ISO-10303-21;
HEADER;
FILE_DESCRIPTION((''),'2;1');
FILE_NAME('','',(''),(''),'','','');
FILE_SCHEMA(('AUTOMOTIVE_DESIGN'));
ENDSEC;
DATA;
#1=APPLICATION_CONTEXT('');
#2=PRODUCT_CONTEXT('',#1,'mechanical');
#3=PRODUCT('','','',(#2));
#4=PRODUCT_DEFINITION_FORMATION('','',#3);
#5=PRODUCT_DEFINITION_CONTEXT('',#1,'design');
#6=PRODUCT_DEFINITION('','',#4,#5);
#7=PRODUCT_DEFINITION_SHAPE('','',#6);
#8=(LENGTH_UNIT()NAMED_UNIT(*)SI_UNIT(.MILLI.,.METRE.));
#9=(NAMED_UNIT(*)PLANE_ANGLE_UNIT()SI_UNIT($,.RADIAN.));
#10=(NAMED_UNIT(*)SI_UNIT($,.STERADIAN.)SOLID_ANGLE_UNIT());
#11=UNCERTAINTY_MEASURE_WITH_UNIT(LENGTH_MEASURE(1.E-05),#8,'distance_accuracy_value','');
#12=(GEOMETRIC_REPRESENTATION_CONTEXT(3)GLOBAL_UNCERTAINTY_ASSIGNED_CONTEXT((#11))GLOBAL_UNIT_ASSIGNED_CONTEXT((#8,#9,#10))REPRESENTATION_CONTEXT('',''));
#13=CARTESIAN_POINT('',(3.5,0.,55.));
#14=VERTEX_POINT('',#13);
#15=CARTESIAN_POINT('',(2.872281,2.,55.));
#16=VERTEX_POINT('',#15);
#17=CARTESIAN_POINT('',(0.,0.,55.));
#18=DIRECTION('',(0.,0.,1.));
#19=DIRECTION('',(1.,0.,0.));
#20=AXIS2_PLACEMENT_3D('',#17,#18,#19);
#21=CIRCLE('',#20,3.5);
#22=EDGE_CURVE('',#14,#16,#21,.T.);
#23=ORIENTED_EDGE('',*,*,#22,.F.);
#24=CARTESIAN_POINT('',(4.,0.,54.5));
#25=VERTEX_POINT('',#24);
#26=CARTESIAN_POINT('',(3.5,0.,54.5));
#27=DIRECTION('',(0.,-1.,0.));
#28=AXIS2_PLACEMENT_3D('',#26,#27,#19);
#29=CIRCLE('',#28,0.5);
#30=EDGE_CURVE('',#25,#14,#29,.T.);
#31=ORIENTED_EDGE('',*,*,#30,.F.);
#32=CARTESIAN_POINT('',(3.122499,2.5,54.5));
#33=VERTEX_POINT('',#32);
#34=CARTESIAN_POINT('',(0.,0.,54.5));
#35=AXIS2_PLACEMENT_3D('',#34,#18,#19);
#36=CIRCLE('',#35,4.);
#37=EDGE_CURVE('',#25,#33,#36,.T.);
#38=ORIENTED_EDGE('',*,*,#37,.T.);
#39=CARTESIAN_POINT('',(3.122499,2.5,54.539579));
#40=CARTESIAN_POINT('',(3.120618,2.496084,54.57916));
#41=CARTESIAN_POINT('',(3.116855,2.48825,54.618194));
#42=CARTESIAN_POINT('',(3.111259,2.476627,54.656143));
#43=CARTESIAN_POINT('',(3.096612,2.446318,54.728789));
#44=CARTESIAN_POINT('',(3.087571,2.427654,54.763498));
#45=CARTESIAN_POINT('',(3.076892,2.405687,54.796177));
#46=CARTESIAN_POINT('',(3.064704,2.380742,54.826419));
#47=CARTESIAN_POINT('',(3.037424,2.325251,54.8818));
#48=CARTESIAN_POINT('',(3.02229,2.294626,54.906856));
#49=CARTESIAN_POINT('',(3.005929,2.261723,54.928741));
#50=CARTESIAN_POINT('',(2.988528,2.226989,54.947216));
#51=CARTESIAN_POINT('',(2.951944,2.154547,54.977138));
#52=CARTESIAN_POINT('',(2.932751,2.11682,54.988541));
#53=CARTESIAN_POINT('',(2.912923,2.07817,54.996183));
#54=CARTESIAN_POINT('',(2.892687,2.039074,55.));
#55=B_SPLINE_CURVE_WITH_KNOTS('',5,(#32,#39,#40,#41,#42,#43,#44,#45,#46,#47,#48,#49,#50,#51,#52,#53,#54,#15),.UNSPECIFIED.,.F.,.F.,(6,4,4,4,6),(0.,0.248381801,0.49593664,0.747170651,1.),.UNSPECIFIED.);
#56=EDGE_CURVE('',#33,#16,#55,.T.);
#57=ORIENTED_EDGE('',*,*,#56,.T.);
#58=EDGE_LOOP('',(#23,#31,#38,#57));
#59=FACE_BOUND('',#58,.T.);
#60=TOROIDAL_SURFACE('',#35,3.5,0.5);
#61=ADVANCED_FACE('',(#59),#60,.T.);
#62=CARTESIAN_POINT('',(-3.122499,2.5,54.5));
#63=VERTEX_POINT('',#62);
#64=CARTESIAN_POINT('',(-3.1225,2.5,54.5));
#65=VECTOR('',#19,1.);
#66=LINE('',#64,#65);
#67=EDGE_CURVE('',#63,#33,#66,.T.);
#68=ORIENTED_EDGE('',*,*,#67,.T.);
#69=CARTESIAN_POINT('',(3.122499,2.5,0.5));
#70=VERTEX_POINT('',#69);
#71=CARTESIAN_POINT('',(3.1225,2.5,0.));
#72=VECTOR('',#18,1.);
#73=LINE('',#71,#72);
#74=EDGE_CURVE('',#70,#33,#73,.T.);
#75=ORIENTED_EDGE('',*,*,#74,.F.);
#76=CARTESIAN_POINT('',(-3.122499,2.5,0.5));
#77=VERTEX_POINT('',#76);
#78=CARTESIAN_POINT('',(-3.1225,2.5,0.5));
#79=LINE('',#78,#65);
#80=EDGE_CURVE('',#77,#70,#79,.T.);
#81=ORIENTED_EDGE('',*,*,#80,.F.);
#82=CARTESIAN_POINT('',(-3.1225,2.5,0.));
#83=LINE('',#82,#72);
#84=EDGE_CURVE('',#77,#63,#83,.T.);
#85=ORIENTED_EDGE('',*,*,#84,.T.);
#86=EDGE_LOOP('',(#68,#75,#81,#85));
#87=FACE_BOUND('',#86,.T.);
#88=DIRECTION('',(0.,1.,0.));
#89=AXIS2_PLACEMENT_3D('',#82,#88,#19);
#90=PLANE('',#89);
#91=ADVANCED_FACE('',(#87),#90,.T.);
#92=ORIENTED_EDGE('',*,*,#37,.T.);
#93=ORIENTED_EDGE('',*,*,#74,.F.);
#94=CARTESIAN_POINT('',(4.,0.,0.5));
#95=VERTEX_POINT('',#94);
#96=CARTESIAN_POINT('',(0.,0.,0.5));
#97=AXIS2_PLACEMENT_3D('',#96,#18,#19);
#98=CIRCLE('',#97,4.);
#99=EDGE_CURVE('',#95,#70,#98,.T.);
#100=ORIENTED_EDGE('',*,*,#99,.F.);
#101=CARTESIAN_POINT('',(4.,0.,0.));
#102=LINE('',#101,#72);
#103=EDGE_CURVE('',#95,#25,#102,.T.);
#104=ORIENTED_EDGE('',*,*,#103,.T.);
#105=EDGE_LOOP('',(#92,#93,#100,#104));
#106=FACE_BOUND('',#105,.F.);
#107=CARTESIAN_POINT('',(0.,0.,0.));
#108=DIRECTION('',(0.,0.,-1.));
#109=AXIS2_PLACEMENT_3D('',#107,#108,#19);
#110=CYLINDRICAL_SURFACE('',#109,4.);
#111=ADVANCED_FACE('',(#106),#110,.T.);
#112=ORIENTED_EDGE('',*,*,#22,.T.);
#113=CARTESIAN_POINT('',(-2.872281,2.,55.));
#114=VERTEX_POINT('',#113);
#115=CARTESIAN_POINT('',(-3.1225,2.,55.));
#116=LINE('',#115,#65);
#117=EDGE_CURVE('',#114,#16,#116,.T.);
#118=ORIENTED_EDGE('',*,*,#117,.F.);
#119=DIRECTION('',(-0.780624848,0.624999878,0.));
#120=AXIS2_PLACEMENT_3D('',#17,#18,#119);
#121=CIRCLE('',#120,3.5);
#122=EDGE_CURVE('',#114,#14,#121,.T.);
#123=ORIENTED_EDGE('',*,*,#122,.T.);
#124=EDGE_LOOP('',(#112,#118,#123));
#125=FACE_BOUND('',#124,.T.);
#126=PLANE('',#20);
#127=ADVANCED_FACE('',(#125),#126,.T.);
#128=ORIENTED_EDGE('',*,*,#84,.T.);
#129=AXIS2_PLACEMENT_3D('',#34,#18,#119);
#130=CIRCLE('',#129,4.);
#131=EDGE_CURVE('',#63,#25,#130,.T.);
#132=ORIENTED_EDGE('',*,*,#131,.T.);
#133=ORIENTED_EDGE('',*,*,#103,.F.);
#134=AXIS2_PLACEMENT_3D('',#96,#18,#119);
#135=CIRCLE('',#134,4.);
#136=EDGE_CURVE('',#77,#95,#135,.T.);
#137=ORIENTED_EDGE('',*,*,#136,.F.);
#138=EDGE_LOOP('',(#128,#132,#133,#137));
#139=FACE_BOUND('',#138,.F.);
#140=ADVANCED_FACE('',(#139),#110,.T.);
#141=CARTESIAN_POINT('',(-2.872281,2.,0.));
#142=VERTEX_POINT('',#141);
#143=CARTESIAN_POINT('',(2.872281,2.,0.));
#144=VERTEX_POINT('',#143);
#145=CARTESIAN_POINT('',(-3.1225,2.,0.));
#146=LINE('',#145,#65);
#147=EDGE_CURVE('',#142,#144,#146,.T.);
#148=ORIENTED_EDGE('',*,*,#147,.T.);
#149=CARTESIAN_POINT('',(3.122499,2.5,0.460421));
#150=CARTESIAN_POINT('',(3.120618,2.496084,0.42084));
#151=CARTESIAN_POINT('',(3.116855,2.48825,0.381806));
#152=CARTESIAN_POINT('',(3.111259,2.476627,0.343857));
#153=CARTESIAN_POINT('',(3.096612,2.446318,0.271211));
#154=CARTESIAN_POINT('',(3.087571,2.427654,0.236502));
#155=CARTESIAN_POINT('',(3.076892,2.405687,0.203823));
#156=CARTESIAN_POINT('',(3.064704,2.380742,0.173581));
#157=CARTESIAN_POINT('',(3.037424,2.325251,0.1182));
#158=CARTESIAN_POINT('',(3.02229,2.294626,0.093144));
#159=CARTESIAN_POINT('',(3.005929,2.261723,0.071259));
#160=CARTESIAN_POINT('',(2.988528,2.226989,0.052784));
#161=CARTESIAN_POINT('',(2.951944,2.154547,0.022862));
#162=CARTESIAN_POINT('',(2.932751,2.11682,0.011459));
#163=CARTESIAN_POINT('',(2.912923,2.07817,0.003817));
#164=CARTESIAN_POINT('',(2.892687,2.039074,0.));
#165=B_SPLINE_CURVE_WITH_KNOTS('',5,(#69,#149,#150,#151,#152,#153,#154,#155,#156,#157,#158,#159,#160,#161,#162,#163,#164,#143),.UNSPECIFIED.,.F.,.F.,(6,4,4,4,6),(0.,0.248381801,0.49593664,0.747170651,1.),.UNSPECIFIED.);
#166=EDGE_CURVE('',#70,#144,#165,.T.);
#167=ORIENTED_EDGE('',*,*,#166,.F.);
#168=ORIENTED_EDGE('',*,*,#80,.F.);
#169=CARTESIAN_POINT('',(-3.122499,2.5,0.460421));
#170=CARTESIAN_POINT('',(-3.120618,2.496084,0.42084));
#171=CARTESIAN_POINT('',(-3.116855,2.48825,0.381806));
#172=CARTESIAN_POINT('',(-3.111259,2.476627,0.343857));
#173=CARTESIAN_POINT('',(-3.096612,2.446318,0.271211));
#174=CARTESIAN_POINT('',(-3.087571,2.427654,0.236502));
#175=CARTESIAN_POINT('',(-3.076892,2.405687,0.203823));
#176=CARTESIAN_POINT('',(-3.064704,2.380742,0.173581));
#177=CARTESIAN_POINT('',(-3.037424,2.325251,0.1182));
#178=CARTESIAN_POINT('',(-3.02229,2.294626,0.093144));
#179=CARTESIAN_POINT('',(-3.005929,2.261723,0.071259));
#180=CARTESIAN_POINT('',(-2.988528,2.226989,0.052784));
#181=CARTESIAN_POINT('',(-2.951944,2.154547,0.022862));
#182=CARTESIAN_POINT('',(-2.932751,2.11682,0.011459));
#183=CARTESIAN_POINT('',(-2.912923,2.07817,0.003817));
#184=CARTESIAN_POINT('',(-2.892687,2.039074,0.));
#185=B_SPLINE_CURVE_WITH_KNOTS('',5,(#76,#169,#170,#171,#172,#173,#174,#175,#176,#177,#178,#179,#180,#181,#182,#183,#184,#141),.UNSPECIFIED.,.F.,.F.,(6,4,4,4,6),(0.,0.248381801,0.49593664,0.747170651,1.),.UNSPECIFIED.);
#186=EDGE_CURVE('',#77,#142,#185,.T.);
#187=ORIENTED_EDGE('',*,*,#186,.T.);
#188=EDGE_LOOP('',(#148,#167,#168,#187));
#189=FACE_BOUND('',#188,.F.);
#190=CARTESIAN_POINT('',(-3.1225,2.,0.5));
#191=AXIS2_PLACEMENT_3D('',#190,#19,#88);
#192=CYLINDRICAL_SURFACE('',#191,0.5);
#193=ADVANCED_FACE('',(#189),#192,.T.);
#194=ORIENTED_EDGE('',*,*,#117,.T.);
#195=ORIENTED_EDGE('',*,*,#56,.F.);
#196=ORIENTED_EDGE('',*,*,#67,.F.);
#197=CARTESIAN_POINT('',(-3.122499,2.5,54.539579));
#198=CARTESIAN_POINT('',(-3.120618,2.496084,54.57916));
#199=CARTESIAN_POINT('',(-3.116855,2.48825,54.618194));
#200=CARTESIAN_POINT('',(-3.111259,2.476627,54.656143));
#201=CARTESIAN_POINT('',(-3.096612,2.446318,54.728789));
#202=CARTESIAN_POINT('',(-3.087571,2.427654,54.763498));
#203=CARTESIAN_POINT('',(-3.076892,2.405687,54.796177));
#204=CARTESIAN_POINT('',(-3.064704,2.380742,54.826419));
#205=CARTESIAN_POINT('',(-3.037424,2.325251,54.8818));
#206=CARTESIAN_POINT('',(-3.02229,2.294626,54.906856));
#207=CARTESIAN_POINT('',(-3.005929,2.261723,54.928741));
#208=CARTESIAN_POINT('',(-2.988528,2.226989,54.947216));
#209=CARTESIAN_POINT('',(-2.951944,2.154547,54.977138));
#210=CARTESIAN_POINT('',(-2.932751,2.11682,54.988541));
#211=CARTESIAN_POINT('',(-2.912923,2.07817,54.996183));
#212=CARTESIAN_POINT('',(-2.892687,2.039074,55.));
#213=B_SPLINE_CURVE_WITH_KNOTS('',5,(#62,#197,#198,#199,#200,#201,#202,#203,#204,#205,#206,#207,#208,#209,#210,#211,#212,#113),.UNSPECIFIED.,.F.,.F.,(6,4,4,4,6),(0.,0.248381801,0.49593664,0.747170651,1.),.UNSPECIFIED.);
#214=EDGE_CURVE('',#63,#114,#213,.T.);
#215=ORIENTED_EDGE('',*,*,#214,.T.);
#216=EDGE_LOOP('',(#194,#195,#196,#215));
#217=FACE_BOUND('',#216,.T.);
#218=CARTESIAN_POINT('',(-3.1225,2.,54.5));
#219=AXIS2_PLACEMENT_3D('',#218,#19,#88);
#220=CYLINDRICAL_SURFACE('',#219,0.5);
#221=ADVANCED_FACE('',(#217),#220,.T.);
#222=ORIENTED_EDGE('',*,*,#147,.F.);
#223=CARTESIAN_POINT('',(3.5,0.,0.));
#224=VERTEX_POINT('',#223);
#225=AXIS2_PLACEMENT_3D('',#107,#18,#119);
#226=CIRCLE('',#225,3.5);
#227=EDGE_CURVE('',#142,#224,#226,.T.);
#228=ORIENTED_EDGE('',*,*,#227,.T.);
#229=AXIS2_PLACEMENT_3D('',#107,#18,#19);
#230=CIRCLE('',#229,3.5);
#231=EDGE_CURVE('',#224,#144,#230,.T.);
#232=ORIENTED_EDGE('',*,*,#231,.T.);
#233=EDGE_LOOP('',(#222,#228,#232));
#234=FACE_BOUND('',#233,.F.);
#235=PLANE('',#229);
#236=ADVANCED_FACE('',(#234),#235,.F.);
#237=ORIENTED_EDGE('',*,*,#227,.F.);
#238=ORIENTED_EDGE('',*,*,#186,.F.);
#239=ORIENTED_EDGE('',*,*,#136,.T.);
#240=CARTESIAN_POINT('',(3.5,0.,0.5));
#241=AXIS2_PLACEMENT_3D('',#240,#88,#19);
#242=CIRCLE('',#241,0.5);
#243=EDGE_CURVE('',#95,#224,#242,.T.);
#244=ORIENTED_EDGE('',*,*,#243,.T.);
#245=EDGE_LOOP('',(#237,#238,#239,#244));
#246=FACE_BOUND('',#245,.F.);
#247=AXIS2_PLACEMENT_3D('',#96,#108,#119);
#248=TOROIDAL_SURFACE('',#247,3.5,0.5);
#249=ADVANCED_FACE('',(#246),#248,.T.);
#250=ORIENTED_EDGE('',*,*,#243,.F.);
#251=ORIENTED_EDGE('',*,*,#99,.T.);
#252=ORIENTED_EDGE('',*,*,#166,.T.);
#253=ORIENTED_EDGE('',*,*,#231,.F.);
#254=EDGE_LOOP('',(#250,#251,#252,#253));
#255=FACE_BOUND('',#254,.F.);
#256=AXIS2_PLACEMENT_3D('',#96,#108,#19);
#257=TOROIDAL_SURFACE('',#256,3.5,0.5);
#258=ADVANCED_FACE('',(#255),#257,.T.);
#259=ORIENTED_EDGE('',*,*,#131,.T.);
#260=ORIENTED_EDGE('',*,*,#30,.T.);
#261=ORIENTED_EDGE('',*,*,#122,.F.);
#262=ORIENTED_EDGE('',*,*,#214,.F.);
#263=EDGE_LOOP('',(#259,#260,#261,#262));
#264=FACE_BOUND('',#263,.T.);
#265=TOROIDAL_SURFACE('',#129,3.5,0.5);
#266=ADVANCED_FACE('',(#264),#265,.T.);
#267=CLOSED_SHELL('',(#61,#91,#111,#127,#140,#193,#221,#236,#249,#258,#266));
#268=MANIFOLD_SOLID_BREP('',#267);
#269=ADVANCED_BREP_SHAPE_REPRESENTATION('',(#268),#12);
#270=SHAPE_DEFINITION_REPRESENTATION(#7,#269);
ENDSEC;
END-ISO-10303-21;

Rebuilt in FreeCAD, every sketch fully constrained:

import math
import FreeCAD as App
import Part
import Sketcher
Q = App.Units.Quantity


def edges_at(feature, points):
    """Names of the edges that pass closest to the given points."""
    edges = feature.Shape.Edges
    near = lambda p: min(range(len(edges)), key=lambda i: edges[i].distToShape(Part.Vertex(*p))[0])
    return sorted({f"Edge{near(p) + 1}" for p in points})

doc = App.newDocument("Part")
body = doc.addObject("PartDesign::Body", "Body")

# Sketch on XY plane
sketch1 = doc.addObject("Sketcher::SketchObject", "Sketch")
body.addObject(sketch1)
sketch1.AttachmentSupport = (doc.XY_Plane, [""])
sketch1.MapMode = "FlatFace"
sketch1.addGeometry(Part.ArcOfCircle(Part.Circle(App.Vector(0, 0, 0), App.Vector(0, 0, 1), 4), math.radians(141), math.radians(399)), False)
sketch1.addGeometry(Part.LineSegment(App.Vector(3.1, 2.5, 0), App.Vector(-3.1, 2.5, 0)), False)
sketch1.addConstraint(Sketcher.Constraint("Coincident", 0, 1, 1, 2))
sketch1.addConstraint(Sketcher.Constraint("Coincident", 1, 1, 0, 2))
sketch1.addConstraint(Sketcher.Constraint("Horizontal", 1))
sketch1.addConstraint(Sketcher.Constraint("Coincident", 0, 3, -1, 1))
sketch1.addConstraint(Sketcher.Constraint("Radius", 0, Q("4 mm")))
sketch1.addConstraint(Sketcher.Constraint("DistanceY", -1, 1, 0, 1, Q("2.5 mm")))
pad1 = doc.addObject("PartDesign::Pad", "Pad")
body.addObject(pad1)
pad1.Profile = sketch1
pad1.Length = 55
doc.recompute()

fillet = doc.addObject("PartDesign::Fillet", "Fillet")
body.addObject(fillet)
fillet.Base = (pad1, edges_at(pad1, [
    (0, -4, 55),
    (0, 2.5, 55),
    (0, -4, 0),
    (0, 2.5, 0),
]))
fillet.Radius = 0.5

doc.recompute()
